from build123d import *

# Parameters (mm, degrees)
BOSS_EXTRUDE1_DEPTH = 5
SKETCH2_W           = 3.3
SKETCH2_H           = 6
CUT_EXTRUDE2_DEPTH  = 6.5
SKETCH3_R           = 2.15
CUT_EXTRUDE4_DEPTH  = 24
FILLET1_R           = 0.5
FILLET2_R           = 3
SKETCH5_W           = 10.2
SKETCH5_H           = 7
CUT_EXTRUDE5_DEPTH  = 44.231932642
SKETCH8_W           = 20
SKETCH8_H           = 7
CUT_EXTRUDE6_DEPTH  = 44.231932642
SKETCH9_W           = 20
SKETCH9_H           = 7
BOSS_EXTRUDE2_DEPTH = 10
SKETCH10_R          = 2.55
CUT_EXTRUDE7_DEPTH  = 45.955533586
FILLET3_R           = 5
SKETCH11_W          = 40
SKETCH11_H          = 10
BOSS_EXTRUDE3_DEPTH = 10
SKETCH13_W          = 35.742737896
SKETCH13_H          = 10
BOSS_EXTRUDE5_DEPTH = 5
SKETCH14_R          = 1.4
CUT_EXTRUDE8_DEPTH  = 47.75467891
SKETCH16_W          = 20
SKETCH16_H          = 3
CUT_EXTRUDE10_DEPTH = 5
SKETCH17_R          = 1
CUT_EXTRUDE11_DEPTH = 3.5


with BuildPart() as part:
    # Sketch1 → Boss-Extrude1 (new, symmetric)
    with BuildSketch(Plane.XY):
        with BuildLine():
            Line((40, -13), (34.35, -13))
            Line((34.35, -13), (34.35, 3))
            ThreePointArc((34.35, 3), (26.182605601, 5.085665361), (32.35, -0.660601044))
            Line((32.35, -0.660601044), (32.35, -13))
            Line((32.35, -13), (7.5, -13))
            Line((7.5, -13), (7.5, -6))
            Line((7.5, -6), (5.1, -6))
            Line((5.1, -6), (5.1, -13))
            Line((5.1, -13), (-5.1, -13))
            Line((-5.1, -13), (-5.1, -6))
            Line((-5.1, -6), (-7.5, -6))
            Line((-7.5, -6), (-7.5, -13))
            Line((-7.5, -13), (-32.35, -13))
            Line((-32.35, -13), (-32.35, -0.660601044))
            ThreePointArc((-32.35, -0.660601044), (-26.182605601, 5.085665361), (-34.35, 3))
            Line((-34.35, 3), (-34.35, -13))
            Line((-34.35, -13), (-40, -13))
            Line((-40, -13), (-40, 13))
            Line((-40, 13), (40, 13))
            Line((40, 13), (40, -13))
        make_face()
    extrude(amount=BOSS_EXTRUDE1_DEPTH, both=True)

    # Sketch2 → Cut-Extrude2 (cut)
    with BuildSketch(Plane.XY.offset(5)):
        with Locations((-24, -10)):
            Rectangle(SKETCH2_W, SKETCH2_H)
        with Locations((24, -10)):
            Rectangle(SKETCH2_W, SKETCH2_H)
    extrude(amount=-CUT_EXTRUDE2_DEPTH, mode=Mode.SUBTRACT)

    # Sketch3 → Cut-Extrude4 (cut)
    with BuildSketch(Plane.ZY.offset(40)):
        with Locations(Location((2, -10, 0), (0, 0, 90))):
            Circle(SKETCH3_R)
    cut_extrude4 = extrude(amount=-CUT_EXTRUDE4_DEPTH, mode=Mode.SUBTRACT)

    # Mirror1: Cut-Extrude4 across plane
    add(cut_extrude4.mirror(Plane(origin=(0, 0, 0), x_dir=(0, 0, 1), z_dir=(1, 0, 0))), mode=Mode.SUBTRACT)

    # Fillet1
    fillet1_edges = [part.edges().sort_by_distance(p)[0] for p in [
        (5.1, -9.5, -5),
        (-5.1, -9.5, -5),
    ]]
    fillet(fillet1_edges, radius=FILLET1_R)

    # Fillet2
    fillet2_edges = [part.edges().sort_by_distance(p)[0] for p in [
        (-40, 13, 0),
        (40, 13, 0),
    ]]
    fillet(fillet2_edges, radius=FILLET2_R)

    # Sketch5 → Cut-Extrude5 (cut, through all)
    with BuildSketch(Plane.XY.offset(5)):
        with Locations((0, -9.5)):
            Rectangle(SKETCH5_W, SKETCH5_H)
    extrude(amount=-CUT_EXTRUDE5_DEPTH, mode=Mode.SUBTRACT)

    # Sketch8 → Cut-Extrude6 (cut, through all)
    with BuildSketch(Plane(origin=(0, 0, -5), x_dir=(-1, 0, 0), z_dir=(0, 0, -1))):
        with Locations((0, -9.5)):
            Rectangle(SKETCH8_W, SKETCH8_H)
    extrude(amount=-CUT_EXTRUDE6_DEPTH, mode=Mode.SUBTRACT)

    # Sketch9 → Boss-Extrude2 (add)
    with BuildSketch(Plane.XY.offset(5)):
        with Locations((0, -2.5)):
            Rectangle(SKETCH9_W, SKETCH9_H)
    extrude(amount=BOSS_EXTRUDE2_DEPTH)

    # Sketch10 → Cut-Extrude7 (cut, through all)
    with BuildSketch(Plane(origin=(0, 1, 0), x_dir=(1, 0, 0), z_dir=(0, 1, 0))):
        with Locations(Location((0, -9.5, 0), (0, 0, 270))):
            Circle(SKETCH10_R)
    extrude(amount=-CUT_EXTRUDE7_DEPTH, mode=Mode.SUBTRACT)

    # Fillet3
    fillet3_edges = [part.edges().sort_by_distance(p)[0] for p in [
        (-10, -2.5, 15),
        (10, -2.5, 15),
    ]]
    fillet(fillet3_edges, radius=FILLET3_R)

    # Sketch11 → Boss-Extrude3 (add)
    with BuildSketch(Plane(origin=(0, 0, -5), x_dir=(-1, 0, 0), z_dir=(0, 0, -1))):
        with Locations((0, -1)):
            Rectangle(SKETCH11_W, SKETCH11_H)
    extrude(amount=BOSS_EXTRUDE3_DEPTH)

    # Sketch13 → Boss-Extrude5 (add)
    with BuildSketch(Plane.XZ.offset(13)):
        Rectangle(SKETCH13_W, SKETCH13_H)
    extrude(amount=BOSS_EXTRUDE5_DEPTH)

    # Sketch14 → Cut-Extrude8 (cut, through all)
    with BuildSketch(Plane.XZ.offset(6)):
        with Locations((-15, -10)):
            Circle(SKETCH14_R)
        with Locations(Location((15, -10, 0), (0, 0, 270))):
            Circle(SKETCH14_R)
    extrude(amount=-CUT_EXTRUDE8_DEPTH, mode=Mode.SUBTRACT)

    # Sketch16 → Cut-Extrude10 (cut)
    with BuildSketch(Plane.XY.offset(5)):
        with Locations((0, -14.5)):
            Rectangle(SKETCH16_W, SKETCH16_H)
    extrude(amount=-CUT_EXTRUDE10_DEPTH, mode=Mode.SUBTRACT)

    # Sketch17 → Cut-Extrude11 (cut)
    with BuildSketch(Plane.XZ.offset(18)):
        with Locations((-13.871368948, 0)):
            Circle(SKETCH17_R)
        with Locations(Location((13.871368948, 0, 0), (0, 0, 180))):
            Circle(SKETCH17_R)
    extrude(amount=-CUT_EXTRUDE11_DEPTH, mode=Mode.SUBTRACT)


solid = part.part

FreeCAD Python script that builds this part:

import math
import FreeCAD as App
import Part
import Sketcher
Q = App.Units.Quantity


def edges_at(feature, points):
    """Names of the edges that pass closest to the given points."""
    edges = feature.Shape.Edges
    near = lambda p: min(range(len(edges)), key=lambda i: edges[i].distToShape(Part.Vertex(*p))[0])
    return sorted({f"Edge{near(p) + 1}" for p in points})

doc = App.newDocument("Part")
body = doc.addObject("PartDesign::Body", "Body")

# Sketch on XY plane
sketch1 = body.newObject("Sketcher::SketchObject", "Sketch")
sketch1.AttachmentSupport = (doc.getObject("XY_Plane"), [""])
sketch1.MapMode = "FlatFace"
sketch1.addGeometry([
    Part.LineSegment(App.Vector(34.35, -13, 0), App.Vector(40, -13, 0)),  # 0
    Part.LineSegment(App.Vector(40, -13, 0), App.Vector(40, 13, 0)),  # 1
    Part.LineSegment(App.Vector(40, 13, 0), App.Vector(-40, 13, 0)),  # 2
    Part.LineSegment(App.Vector(-40, 13, 0), App.Vector(-40, -13, 0)),  # 3
    Part.LineSegment(App.Vector(-40, -13, 0), App.Vector(-34.35, -13, 0)),  # 4
    Part.LineSegment(App.Vector(-34.35, -13, 0), App.Vector(-34.35, 3, 0)),  # 5
    Part.ArcOfCircle(Part.Circle(App.Vector(-30, 3, 0), App.Vector(0, 0, 1), 4.35), math.radians(-122.699289), math.radians(180)),  # 6
    Part.LineSegment(App.Vector(-32.35, -0.660601, 0), App.Vector(-32.35, -13, 0)),  # 7
    Part.LineSegment(App.Vector(-32.35, -13, 0), App.Vector(-7.5, -13, 0)),  # 8
    Part.LineSegment(App.Vector(-7.5, -13, 0), App.Vector(-7.5, -6, 0)),  # 9
    Part.LineSegment(App.Vector(-7.5, -6, 0), App.Vector(-5.1, -6, 0)),  # 10
    Part.LineSegment(App.Vector(-5.1, -6, 0), App.Vector(-5.1, -13, 0)),  # 11
    Part.LineSegment(App.Vector(-5.1, -13, 0), App.Vector(5.1, -13, 0)),  # 12
    Part.LineSegment(App.Vector(5.1, -13, 0), App.Vector(5.1, -6, 0)),  # 13
    Part.LineSegment(App.Vector(5.1, -6, 0), App.Vector(7.5, -6, 0)),  # 14
    Part.LineSegment(App.Vector(7.5, -6, 0), App.Vector(7.5, -13, 0)),  # 15
    Part.LineSegment(App.Vector(7.5, -13, 0), App.Vector(32.35, -13, 0)),  # 16
    Part.LineSegment(App.Vector(32.35, -13, 0), App.Vector(32.35, -0.660601, 0)),  # 17
    Part.ArcOfCircle(Part.Circle(App.Vector(30, 3, 0), App.Vector(0, 0, 1), 4.35), math.radians(0), math.radians(302.699289)),  # 18
    Part.LineSegment(App.Vector(34.35, 3, 0), App.Vector(34.35, -13, 0)),  # 19
], False)
sketch1.addConstraint([
    Sketcher.Constraint("Coincident", 0, 2, 1, 1),
    Sketcher.Constraint("Coincident", 1, 2, 2, 1),
    Sketcher.Constraint("Coincident", 2, 2, 3, 1),
    Sketcher.Constraint("Coincident", 3, 2, 4, 1),
    Sketcher.Constraint("Coincident", 4, 2, 5, 1),
    Sketcher.Constraint("Tangent", 5, 2, 6, 2),
    Sketcher.Constraint("Coincident", 6, 1, 7, 1),
    Sketcher.Constraint("Coincident", 7, 2, 8, 1),
    Sketcher.Constraint("Coincident", 8, 2, 9, 1),
    Sketcher.Constraint("Coincident", 9, 2, 10, 1),
    Sketcher.Constraint("Coincident", 10, 2, 11, 1),
    Sketcher.Constraint("Coincident", 11, 2, 12, 1),
    Sketcher.Constraint("Coincident", 12, 2, 13, 1),
    Sketcher.Constraint("Coincident", 13, 2, 14, 1),
    Sketcher.Constraint("Coincident", 14, 2, 15, 1),
    Sketcher.Constraint("Coincident", 15, 2, 16, 1),
    Sketcher.Constraint("Coincident", 16, 2, 17, 1),
    Sketcher.Constraint("Coincident", 17, 2, 18, 2),
    Sketcher.Constraint("Tangent", 18, 1, 19, 1),
    Sketcher.Constraint("Coincident", 19, 2, 0, 1),
    Sketcher.Constraint("Horizontal", 0),
    Sketcher.Constraint("Vertical", 1),
    Sketcher.Constraint("Horizontal", 2),
    Sketcher.Constraint("Vertical", 3),
    Sketcher.Constraint("Horizontal", 4),
    Sketcher.Constraint("Vertical", 5),
    Sketcher.Constraint("Vertical", 7),
    Sketcher.Constraint("Horizontal", 8),
    Sketcher.Constraint("Vertical", 9),
    Sketcher.Constraint("Horizontal", 10),
    Sketcher.Constraint("Vertical", 11),
    Sketcher.Constraint("Horizontal", 12),
    Sketcher.Constraint("Vertical", 13),
    Sketcher.Constraint("Horizontal", 14),
    Sketcher.Constraint("Vertical", 15),
    Sketcher.Constraint("Horizontal", 16),
    Sketcher.Constraint("Vertical", 17),
    Sketcher.Constraint("Vertical", 19),
    Sketcher.Constraint("Equal", 6, 18),
    Sketcher.Constraint("Symmetric", 0, 2, 2, 2, -1, 1),
    Sketcher.Constraint("Symmetric", 6, 3, 18, 3, -2),
    Sketcher.Constraint("Symmetric", 10, 2, 13, 2, -2),
    Sketcher.Constraint("Symmetric", 8, 2, 15, 2, -2),
    Sketcher.Constraint("Horizontal", 0, 2, 3, 2),
    Sketcher.Constraint("Horizontal", 4, 2, 7, 2),
    Sketcher.Constraint("Horizontal", 8, 2, 11, 2),
    Sketcher.Constraint("Horizontal", 6, 1, 17, 2),
    Sketcher.Constraint("DistanceX", 2, 2, 2, 1, Q("80 mm")),
    Sketcher.Constraint("DistanceY", 1, 1, 1, 2, Q("26 mm")),
    Sketcher.Constraint("DistanceY", 5, 1, 5, 2, Q("16 mm")),
    Sketcher.Constraint("DistanceY", 9, 1, 9, 2, Q("7 mm")),
    Sketcher.Constraint("Radius", 6, Q("4.35 mm")),
    Sketcher.Constraint("DistanceX", 10, 1, 10, 2, Q("2.4 mm")),
    Sketcher.Constraint("DistanceX", 12, 1, 12, 2, Q("10.2 mm")),
    Sketcher.Constraint("DistanceX", 6, 3, -1, 1, Q("30 mm")),
    Sketcher.Constraint("DistanceX", 5, 2, 6, 1, Q("2 mm")),
])
pad1 = body.newObject("PartDesign::Pad", "Pad")
pad1.Profile = sketch1
pad1.Length = 10
pad1.Midplane = True

# Sketch on XY plane
sketch2 = body.newObject("Sketcher::SketchObject", "Sketch001")
sketch2.AttachmentSupport = (doc.getObject("XY_Plane"), [""])
sketch2.MapMode = "FlatFace"
sketch2.AttachmentOffset = App.Placement(App.Vector(0, 0, 5), App.Rotation())
sketch2.addGeometry([
    Part.LineSegment(App.Vector(-25.65, -7, 0), App.Vector(-25.65, -13, 0)),  # 0
    Part.LineSegment(App.Vector(-25.65, -13, 0), App.Vector(-22.35, -13, 0)),  # 1
    Part.LineSegment(App.Vector(-22.35, -13, 0), App.Vector(-22.35, -7, 0)),  # 2
    Part.LineSegment(App.Vector(-22.35, -7, 0), App.Vector(-25.65, -7, 0)),  # 3
    Part.LineSegment(App.Vector(22.35, -7, 0), App.Vector(22.35, -13, 0)),  # 4
    Part.LineSegment(App.Vector(22.35, -13, 0), App.Vector(25.65, -13, 0)),  # 5
    Part.LineSegment(App.Vector(25.65, -13, 0), App.Vector(25.65, -7, 0)),  # 6
    Part.LineSegment(App.Vector(25.65, -7, 0), App.Vector(22.35, -7, 0)),  # 7
], False)
sketch2.addConstraint([
    Sketcher.Constraint("Coincident", 0, 2, 1, 1),
    Sketcher.Constraint("Coincident", 1, 2, 2, 1),
    Sketcher.Constraint("Coincident", 2, 2, 3, 1),
    Sketcher.Constraint("Coincident", 3, 2, 0, 1),
    Sketcher.Constraint("Coincident", 4, 2, 5, 1),
    Sketcher.Constraint("Coincident", 5, 2, 6, 1),
    Sketcher.Constraint("Coincident", 6, 2, 7, 1),
    Sketcher.Constraint("Coincident", 7, 2, 4, 1),
    Sketcher.Constraint("Vertical", 0),
    Sketcher.Constraint("Horizontal", 1),
    Sketcher.Constraint("Vertical", 2),
    Sketcher.Constraint("Horizontal", 3),
    Sketcher.Constraint("Vertical", 4),
    Sketcher.Constraint("Horizontal", 5),
    Sketcher.Constraint("Vertical", 6),
    Sketcher.Constraint("Horizontal", 7),
    Sketcher.Constraint("Symmetric", 1, 2, 4, 2, -2),
    Sketcher.Constraint("Symmetric", 3, 2, 6, 2, -2),
    Sketcher.Constraint("DistanceY", 0, 2, 0, 1, Q("6 mm")),
    Sketcher.Constraint("DistanceX", 1, 1, 1, 2, Q("3.3 mm")),
    Sketcher.Constraint("DistanceY", 0, 2, -1, 1, Q("13 mm")),
    Sketcher.Constraint("DistanceX", 0, 2, 4, 2, Q("48 mm")),
])
pocket1 = body.newObject("PartDesign::Pocket", "Pocket")
pocket1.Profile = sketch2
pocket1.Length = 6.5

# Sketch on YZ plane
sketch3 = body.newObject("Sketcher::SketchObject", "Sketch002")
sketch3.AttachmentSupport = (doc.getObject("YZ_Plane"), [""])
sketch3.MapMode = "FlatFace"
sketch3.AttachmentOffset = App.Placement(App.Vector(0, 0, -40), App.Rotation())
sketch3.addGeometry(Part.Circle(App.Vector(-10, 2, 0), App.Vector(0, 0, 1), 2.15), False)
sketch3.addConstraint([
    Sketcher.Constraint("Diameter", 0, Q("4.3 mm")),
    Sketcher.Constraint("DistanceX", 0, 3, -1, 1, Q("10 mm")),
    Sketcher.Constraint("DistanceY", -1, 1, 0, 3, Q("2 mm")),
])
pocket2 = body.newObject("PartDesign::Pocket", "Pocket001")
pocket2.Profile = sketch3
pocket2.Length = 24
pocket2.Reversed = True
doc.recompute()

mirrored = body.newObject("PartDesign::Mirrored", "Mirrored")
mirrored.Originals = [pocket2]
mirrored.MirrorPlane = (doc.getObject("YZ_Plane"), [""])
body.Tip = mirrored
doc.recompute()

fillet = body.newObject("PartDesign::Fillet", "Fillet")
fillet.Base = (mirrored, edges_at(mirrored, [(5.1, -9.5, -5), (-5.1, -9.5, -5)]))
fillet.Radius = 0.5
doc.recompute()

fillet2 = body.newObject("PartDesign::Fillet", "Fillet001")
fillet2.Base = (fillet, edges_at(fillet, [(-40, 13, 0), (40, 13, 0)]))
fillet2.Radius = 3

# Sketch on XY plane
sketch4 = body.newObject("Sketcher::SketchObject", "Sketch003")
sketch4.AttachmentSupport = (doc.getObject("XY_Plane"), [""])
sketch4.MapMode = "FlatFace"
sketch4.AttachmentOffset = App.Placement(App.Vector(0, 0, 5), App.Rotation())
sketch4.addGeometry([
    Part.LineSegment(App.Vector(-5.1, -6, 0), App.Vector(-5.1, -13, 0)),
    Part.LineSegment(App.Vector(-5.1, -13, 0), App.Vector(5.1, -13, 0)),
    Part.LineSegment(App.Vector(5.1, -13, 0), App.Vector(5.1, -6, 0)),
    Part.LineSegment(App.Vector(5.1, -6, 0), App.Vector(-5.1, -6, 0)),
], False)
sketch4.addConstraint([
    Sketcher.Constraint("Coincident", 0, 2, 1, 1),
    Sketcher.Constraint("Coincident", 1, 2, 2, 1),
    Sketcher.Constraint("Coincident", 2, 2, 3, 1),
    Sketcher.Constraint("Coincident", 3, 2, 0, 1),
    Sketcher.Constraint("Vertical", 0),
    Sketcher.Constraint("Horizontal", 1),
    Sketcher.Constraint("Vertical", 2),
    Sketcher.Constraint("Horizontal", 3),
    Sketcher.Constraint("DistanceY", 0, 2, 0, 1, Q("7 mm")),
    Sketcher.Constraint("DistanceX", 1, 1, 1, 2, Q("10.2 mm")),
    Sketcher.Constraint("DistanceY", 0, 2, -1, 1, Q("13 mm")),
    Sketcher.Constraint("DistanceX", 0, 2, -1, 1, Q("5.1 mm")),
])
pocket3 = body.newObject("PartDesign::Pocket", "Pocket002")
pocket3.Profile = sketch4
pocket3.Type = "ThroughAll"

# Sketch on XY plane
sketch5 = body.newObject("Sketcher::SketchObject", "Sketch004")
sketch5.AttachmentSupport = (doc.getObject("XY_Plane"), [""])
sketch5.MapMode = "FlatFace"
sketch5.AttachmentOffset = App.Placement(App.Vector(0, 0, -5), App.Rotation())
sketch5.addGeometry([
    Part.LineSegment(App.Vector(10, -6, 0), App.Vector(10, -13, 0)),
    Part.LineSegment(App.Vector(10, -13, 0), App.Vector(-10, -13, 0)),
    Part.LineSegment(App.Vector(-10, -13, 0), App.Vector(-10, -6, 0)),
    Part.LineSegment(App.Vector(-10, -6, 0), App.Vector(10, -6, 0)),
], False)
sketch5.addConstraint([
    Sketcher.Constraint("Coincident", 0, 2, 1, 1),
    Sketcher.Constraint("Coincident", 1, 2, 2, 1),
    Sketcher.Constraint("Coincident", 2, 2, 3, 1),
    Sketcher.Constraint("Coincident", 3, 2, 0, 1),
    Sketcher.Constraint("Vertical", 0),
    Sketcher.Constraint("Horizontal", 1),
    Sketcher.Constraint("Vertical", 2),
    Sketcher.Constraint("Horizontal", 3),
    Sketcher.Constraint("DistanceX", 1, 2, 1, 1, Q("20 mm")),
    Sketcher.Constraint("DistanceY", 0, 2, 0, 1, Q("7 mm")),
    Sketcher.Constraint("DistanceX", -1, 1, 0, 2, Q("10 mm")),
    Sketcher.Constraint("DistanceY", 0, 2, -1, 1, Q("13 mm")),
])
pocket4 = body.newObject("PartDesign::Pocket", "Pocket003")
pocket4.Profile = sketch5
pocket4.Type = "ThroughAll"
pocket4.Reversed = True

# Sketch on XY plane
sketch6 = body.newObject("Sketcher::SketchObject", "Sketch005")
sketch6.AttachmentSupport = (doc.getObject("XY_Plane"), [""])
sketch6.MapMode = "FlatFace"
sketch6.AttachmentOffset = App.Placement(App.Vector(0, 0, 5), App.Rotation())
sketch6.addGeometry([
    Part.LineSegment(App.Vector(-10, 1, 0), App.Vector(-10, -6, 0)),
    Part.LineSegment(App.Vector(-10, -6, 0), App.Vector(10, -6, 0)),
    Part.LineSegment(App.Vector(10, -6, 0), App.Vector(10, 1, 0)),
    Part.LineSegment(App.Vector(10, 1, 0), App.Vector(-10, 1, 0)),
], False)
sketch6.addConstraint([
    Sketcher.Constraint("Coincident", 0, 2, 1, 1),
    Sketcher.Constraint("Coincident", 1, 2, 2, 1),
    Sketcher.Constraint("Coincident", 2, 2, 3, 1),
    Sketcher.Constraint("Coincident", 3, 2, 0, 1),
    Sketcher.Constraint("Vertical", 0),
    Sketcher.Constraint("Horizontal", 1),
    Sketcher.Constraint("Vertical", 2),
    Sketcher.Constraint("Horizontal", 3),
    Sketcher.Constraint("DistanceX", 1, 1, 1, 2, Q("20 mm")),
    Sketcher.Constraint("DistanceY", 0, 2, 0, 1, Q("7 mm")),
    Sketcher.Constraint("DistanceX", 0, 2, -1, 1, Q("10 mm")),
    Sketcher.Constraint("DistanceY", 0, 2, -1, 1, Q("6 mm")),
])
pad2 = body.newObject("PartDesign::Pad", "Pad001")
pad2.Profile = sketch6
pad2.Length = 10

# Sketch on XZ plane
sketch7 = body.newObject("Sketcher::SketchObject", "Sketch006")
sketch7.AttachmentSupport = (doc.getObject("XZ_Plane"), [""])
sketch7.MapMode = "FlatFace"
sketch7.AttachmentOffset = App.Placement(App.Vector(0, 0, -1), App.Rotation())
sketch7.addGeometry(Part.Circle(App.Vector(0, 9.5, 0), App.Vector(0, 0, 1), 2.55), False)
sketch7.addConstraint([
    Sketcher.Constraint("PointOnObject", 0, 3, -2),
    Sketcher.Constraint("Diameter", 0, Q("5.1 mm")),
    Sketcher.Constraint("DistanceY", -1, 1, 0, 3, Q("9.5 mm")),
])
pocket5 = body.newObject("PartDesign::Pocket", "Pocket004")
pocket5.Profile = sketch7
pocket5.Type = "ThroughAll"
pocket5.Reversed = True
doc.recompute()

fillet3 = body.newObject("PartDesign::Fillet", "Fillet002")
fillet3.Base = (pocket5, edges_at(pocket5, [(-10, -2.5, 15), (10, -2.5, 15)]))
fillet3.Radius = 5

# Sketch on XY plane
sketch8 = body.newObject("Sketcher::SketchObject", "Sketch007")
sketch8.AttachmentSupport = (doc.getObject("XY_Plane"), [""])
sketch8.MapMode = "FlatFace"
sketch8.AttachmentOffset = App.Placement(App.Vector(0, 0, -5), App.Rotation())
sketch8.addGeometry([
    Part.LineSegment(App.Vector(20, 4, 0), App.Vector(20, -6, 0)),
    Part.LineSegment(App.Vector(20, -6, 0), App.Vector(-20, -6, 0)),
    Part.LineSegment(App.Vector(-20, -6, 0), App.Vector(-20, 4, 0)),
    Part.LineSegment(App.Vector(-20, 4, 0), App.Vector(20, 4, 0)),
], False)
sketch8.addConstraint([
    Sketcher.Constraint("Coincident", 0, 2, 1, 1),
    Sketcher.Constraint("Coincident", 1, 2, 2, 1),
    Sketcher.Constraint("Coincident", 2, 2, 3, 1),
    Sketcher.Constraint("Coincident", 3, 2, 0, 1),
    Sketcher.Constraint("Vertical", 0),
    Sketcher.Constraint("Horizontal", 1),
    Sketcher.Constraint("Vertical", 2),
    Sketcher.Constraint("Horizontal", 3),
    Sketcher.Constraint("DistanceX", 1, 2, 1, 1, Q("40 mm")),
    Sketcher.Constraint("DistanceY", 0, 2, 0, 1, Q("10 mm")),
    Sketcher.Constraint("DistanceX", -1, 1, 0, 2, Q("20 mm")),
    Sketcher.Constraint("DistanceY", 0, 2, -1, 1, Q("6 mm")),
])
pad3 = body.newObject("PartDesign::Pad", "Pad002")
pad3.Profile = sketch8
pad3.Length = 10
pad3.Reversed = True

# Sketch on XZ plane
sketch9 = body.newObject("Sketcher::SketchObject", "Sketch008")
sketch9.AttachmentSupport = (doc.getObject("XZ_Plane"), [""])
sketch9.MapMode = "FlatFace"
sketch9.AttachmentOffset = App.Placement(App.Vector(0, 0, 13), App.Rotation())
sketch9.addGeometry([
    Part.LineSegment(App.Vector(-17.871369, 5, 0), App.Vector(-17.871369, -5, 0)),
    Part.LineSegment(App.Vector(-17.871369, -5, 0), App.Vector(17.871369, -5, 0)),
    Part.LineSegment(App.Vector(17.871369, -5, 0), App.Vector(17.871369, 5, 0)),
    Part.LineSegment(App.Vector(17.871369, 5, 0), App.Vector(-17.871369, 5, 0)),
], False)
sketch9.addConstraint([
    Sketcher.Constraint("Coincident", 0, 2, 1, 1),
    Sketcher.Constraint("Coincident", 1, 2, 2, 1),
    Sketcher.Constraint("Coincident", 2, 2, 3, 1),
    Sketcher.Constraint("Coincident", 3, 2, 0, 1),
    Sketcher.Constraint("Vertical", 0),
    Sketcher.Constraint("Horizontal", 1),
    Sketcher.Constraint("Vertical", 2),
    Sketcher.Constraint("Horizontal", 3),
    Sketcher.Constraint("Symmetric", 0, 2, 2, 2, -1, 1),
    Sketcher.Constraint("DistanceY", 0, 2, 0, 1, Q("10 mm")),
    Sketcher.Constraint("DistanceX", 1, 1, 1, 2, Q("35.742738 mm")),
])
pad4 = body.newObject("PartDesign::Pad", "Pad003")
pad4.Profile = sketch9
pad4.Length = 5

# Sketch on XZ plane
sketch10 = body.newObject("Sketcher::SketchObject", "Sketch009")
sketch10.AttachmentSupport = (doc.getObject("XZ_Plane"), [""])
sketch10.MapMode = "FlatFace"
sketch10.AttachmentOffset = App.Placement(App.Vector(0, 0, 6), App.Rotation())
sketch10.addGeometry([
    Part.Circle(App.Vector(-15, -10, 0), App.Vector(0, 0, 1), 1.4),
    Part.Circle(App.Vector(15, -10, 0), App.Vector(0, 0, 1), 1.4),
], False)
sketch10.addConstraint([
    Sketcher.Constraint("Equal", 0, 1),
    Sketcher.Constraint("Symmetric", 0, 3, 1, 3, -2),
    Sketcher.Constraint("Diameter", 0, Q("2.8 mm")),
    Sketcher.Constraint("DistanceX", 0, 3, -1, 1, Q("15 mm")),
    Sketcher.Constraint("DistanceY", 0, 3, -1, 1, Q("10 mm")),
])
pocket6 = body.newObject("PartDesign::Pocket", "Pocket005")
pocket6.Profile = sketch10
pocket6.Type = "ThroughAll"

# Sketch on XY plane
sketch11 = body.newObject("Sketcher::SketchObject", "Sketch010")
sketch11.AttachmentSupport = (doc.getObject("XY_Plane"), [""])
sketch11.MapMode = "FlatFace"
sketch11.AttachmentOffset = App.Placement(App.Vector(0, 0, 5), App.Rotation())
sketch11.addGeometry([
    Part.LineSegment(App.Vector(-10, -13, 0), App.Vector(-10, -16, 0)),
    Part.LineSegment(App.Vector(-10, -16, 0), App.Vector(10, -16, 0)),
    Part.LineSegment(App.Vector(10, -16, 0), App.Vector(10, -13, 0)),
    Part.LineSegment(App.Vector(10, -13, 0), App.Vector(-10, -13, 0)),
], False)
sketch11.addConstraint([
    Sketcher.Constraint("Coincident", 0, 2, 1, 1),
    Sketcher.Constraint("Coincident", 1, 2, 2, 1),
    Sketcher.Constraint("Coincident", 2, 2, 3, 1),
    Sketcher.Constraint("Coincident", 3, 2, 0, 1),
    Sketcher.Constraint("Vertical", 0),
    Sketcher.Constraint("Horizontal", 1),
    Sketcher.Constraint("Vertical", 2),
    Sketcher.Constraint("Horizontal", 3),
    Sketcher.Constraint("DistanceX", 1, 1, 1, 2, Q("20 mm")),
    Sketcher.Constraint("DistanceY", 0, 2, 0, 1, Q("3 mm")),
    Sketcher.Constraint("DistanceX", 0, 2, -1, 1, Q("10 mm")),
    Sketcher.Constraint("DistanceY", 0, 2, -1, 1, Q("16 mm")),
])
pocket7 = body.newObject("PartDesign::Pocket", "Pocket006")
pocket7.Profile = sketch11
pocket7.Length = 5

# Sketch on XZ plane
sketch12 = body.newObject("Sketcher::SketchObject", "Sketch011")
sketch12.AttachmentSupport = (doc.getObject("XZ_Plane"), [""])
sketch12.MapMode = "FlatFace"
sketch12.AttachmentOffset = App.Placement(App.Vector(0, 0, 18), App.Rotation())
sketch12.addGeometry([
    Part.Circle(App.Vector(-13.871369, 0, 0), App.Vector(0, 0, 1), 1),
    Part.Circle(App.Vector(13.871369, 0, 0), App.Vector(0, 0, 1), 1),
], False)
sketch12.addConstraint([
    Sketcher.Constraint("Equal", 0, 1),
    Sketcher.Constraint("Symmetric", 0, 3, 1, 3, -1, 1),
    Sketcher.Constraint("PointOnObject", 0, 3, -1),
    Sketcher.Constraint("Diameter", 0, Q("2 mm")),
    Sketcher.Constraint("DistanceX", 0, 3, -1, 1, Q("13.871369 mm")),
])
pocket8 = body.newObject("PartDesign::Pocket", "Pocket007")
pocket8.Profile = sketch12
pocket8.Length = 3.5

doc.recompute()
